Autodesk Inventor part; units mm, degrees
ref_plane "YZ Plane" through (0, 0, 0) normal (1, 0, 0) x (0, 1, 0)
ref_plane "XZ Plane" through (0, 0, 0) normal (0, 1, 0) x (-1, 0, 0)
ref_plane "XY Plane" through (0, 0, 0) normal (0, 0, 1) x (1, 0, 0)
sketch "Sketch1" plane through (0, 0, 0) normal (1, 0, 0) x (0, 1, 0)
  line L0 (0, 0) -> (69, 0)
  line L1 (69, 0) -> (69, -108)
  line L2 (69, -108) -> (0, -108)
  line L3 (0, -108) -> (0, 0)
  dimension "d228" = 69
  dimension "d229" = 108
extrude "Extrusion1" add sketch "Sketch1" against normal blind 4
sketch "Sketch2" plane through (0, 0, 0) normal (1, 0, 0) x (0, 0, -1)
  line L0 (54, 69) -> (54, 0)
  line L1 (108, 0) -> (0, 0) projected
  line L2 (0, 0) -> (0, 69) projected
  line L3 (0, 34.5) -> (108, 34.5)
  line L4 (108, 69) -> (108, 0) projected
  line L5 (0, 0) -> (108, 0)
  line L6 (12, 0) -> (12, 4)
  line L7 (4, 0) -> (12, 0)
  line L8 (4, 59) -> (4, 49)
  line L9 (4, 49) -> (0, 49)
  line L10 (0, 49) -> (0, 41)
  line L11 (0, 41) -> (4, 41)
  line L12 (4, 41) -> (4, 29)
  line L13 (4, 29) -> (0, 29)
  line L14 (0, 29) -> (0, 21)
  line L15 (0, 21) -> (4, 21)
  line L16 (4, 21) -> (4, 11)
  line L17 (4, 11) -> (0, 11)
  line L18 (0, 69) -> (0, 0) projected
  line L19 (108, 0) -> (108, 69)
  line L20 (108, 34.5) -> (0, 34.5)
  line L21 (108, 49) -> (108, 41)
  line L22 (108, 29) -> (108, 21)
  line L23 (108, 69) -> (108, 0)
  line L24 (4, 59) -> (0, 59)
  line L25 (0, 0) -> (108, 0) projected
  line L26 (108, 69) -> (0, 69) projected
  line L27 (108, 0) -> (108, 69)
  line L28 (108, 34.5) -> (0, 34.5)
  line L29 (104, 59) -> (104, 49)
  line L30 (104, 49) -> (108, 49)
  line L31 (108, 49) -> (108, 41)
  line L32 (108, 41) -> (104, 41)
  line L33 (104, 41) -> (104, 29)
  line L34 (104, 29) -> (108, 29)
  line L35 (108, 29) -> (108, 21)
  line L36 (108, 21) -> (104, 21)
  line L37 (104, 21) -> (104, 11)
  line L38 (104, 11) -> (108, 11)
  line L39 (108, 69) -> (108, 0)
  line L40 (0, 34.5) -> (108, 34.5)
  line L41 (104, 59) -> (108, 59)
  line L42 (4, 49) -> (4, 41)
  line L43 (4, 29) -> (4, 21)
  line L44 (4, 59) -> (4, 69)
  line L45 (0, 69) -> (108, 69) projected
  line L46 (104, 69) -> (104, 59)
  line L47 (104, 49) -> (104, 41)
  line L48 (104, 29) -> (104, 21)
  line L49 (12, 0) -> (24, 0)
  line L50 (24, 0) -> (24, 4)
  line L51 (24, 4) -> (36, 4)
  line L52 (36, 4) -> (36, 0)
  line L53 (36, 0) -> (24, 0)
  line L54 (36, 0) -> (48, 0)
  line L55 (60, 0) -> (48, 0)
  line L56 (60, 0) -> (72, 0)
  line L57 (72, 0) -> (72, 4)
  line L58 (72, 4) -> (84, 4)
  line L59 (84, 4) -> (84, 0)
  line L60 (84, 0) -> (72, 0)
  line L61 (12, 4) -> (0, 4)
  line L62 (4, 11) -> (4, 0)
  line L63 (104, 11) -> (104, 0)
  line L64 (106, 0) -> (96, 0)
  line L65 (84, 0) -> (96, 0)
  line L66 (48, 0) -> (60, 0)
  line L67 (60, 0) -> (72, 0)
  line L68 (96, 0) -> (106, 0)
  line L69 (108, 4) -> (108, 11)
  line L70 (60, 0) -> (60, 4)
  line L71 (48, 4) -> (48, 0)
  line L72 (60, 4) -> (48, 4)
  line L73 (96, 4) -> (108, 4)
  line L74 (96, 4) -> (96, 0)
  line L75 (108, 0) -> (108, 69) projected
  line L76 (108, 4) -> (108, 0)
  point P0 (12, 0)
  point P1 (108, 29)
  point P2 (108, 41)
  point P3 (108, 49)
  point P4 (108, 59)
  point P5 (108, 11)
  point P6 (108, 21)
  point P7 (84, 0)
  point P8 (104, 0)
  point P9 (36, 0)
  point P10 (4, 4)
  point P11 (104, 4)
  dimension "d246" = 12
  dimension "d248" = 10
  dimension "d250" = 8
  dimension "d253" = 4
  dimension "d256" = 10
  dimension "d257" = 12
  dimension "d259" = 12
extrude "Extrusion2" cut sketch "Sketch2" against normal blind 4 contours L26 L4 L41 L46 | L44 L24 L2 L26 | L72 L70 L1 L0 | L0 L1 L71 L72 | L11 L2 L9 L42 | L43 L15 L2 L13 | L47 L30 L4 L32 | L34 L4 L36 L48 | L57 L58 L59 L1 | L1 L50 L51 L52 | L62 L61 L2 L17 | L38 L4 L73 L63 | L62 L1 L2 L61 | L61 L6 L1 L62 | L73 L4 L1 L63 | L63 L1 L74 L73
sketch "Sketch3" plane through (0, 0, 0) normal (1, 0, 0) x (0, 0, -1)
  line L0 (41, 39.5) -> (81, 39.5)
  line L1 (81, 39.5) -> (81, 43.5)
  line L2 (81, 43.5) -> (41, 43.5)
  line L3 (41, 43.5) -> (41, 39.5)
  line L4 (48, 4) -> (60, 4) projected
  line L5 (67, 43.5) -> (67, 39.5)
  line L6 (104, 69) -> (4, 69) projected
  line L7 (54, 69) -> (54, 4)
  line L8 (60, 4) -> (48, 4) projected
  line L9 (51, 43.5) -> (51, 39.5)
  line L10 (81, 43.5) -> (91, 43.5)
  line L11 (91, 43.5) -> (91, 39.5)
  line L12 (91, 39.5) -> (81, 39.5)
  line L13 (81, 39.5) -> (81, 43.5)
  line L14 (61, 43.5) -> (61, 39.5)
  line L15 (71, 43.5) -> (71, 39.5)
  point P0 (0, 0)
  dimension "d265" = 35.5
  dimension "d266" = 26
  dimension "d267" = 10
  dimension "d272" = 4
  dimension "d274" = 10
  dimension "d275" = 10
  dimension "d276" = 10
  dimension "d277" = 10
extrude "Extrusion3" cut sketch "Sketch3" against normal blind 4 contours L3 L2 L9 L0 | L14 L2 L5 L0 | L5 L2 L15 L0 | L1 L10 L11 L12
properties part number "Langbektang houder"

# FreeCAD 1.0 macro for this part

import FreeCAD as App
import Part
import Sketcher

V = App.Vector
Q = App.Units.Quantity

doc = App.newDocument("Part")
body = doc.addObject("PartDesign::Body", "Body")

sketch1 = body.newObject("Sketcher::SketchObject", "Sketch")
sketch1.AttachmentSupport = (doc.getObject("YZ_Plane"), [""])
sketch1.MapMode = "FlatFace"
sketch1.addGeometry(Part.LineSegment(V(69, 0, 0), V(0, 0, 0)), False)
sketch1.addGeometry(Part.LineSegment(V(0, 0, 0), V(0, -108, 0)), False)
sketch1.addGeometry(Part.LineSegment(V(0, -108, 0), V(69, -108, 0)), False)
sketch1.addGeometry(Part.LineSegment(V(69, -108, 0), V(69, 0, 0)), False)
sketch1.addConstraint(Sketcher.Constraint("Coincident", 0, 2, 1, 1))
sketch1.addConstraint(Sketcher.Constraint("Coincident", 1, 2, 2, 1))
sketch1.addConstraint(Sketcher.Constraint("Coincident", 2, 2, 3, 1))
sketch1.addConstraint(Sketcher.Constraint("Coincident", 3, 2, 0, 1))
sketch1.addConstraint(Sketcher.Constraint("Horizontal", 0))
sketch1.addConstraint(Sketcher.Constraint("Vertical", 1))
sketch1.addConstraint(Sketcher.Constraint("Horizontal", 2))
sketch1.addConstraint(Sketcher.Constraint("Vertical", 3))
sketch1.addConstraint(Sketcher.Constraint("Coincident", 0, 2, -1, 1))
sketch1.addConstraint(Sketcher.Constraint("DistanceX", 0, 2, 0, 1, Q("69 mm")))
sketch1.addConstraint(Sketcher.Constraint("DistanceY", 1, 2, 1, 1, Q("108 mm")))
pad1 = body.newObject("PartDesign::Pad", "Pad")
pad1.Profile = sketch1
pad1.Length = 4
pad1.Reversed = True

sketch2 = body.newObject("Sketcher::SketchObject", "Sketch001")
sketch2.AttachmentSupport = (doc.getObject("YZ_Plane"), [""])
sketch2.MapMode = "FlatFace"
sketch2.addGeometry(Part.LineSegment(V(69, -108, 0), V(69, -104, 0)), False)
sketch2.addGeometry(Part.LineSegment(V(69, -104, 0), V(59, -104, 0)), False)
sketch2.addGeometry(Part.LineSegment(V(59, -104, 0), V(59, -108, 0)), False)
sketch2.addGeometry(Part.LineSegment(V(59, -108, 0), V(69, -108, 0)), False)
sketch2.addGeometry(Part.LineSegment(V(59, -4, 0), V(69, -4, 0)), False)
sketch2.addGeometry(Part.LineSegment(V(69, -4, 0), V(69, 0, 0)), False)
sketch2.addGeometry(Part.LineSegment(V(69, 0, 0), V(59, 0, 0)), False)
sketch2.addGeometry(Part.LineSegment(V(59, 0, 0), V(59, -4, 0)), False)
sketch2.addGeometry(Part.LineSegment(V(4, -60, 0), V(4, -48, 0)), False)
sketch2.addGeometry(Part.LineSegment(V(4, -48, 0), V(0, -48, 0)), False)
sketch2.addGeometry(Part.LineSegment(V(0, -48, 0), V(0, -60, 0)), False)
sketch2.addGeometry(Part.LineSegment(V(0, -60, 0), V(4, -60, 0)), False)
sketch2.addGeometry(Part.LineSegment(V(41, 0, 0), V(41, -4, 0)), False)
sketch2.addGeometry(Part.LineSegment(V(41, -4, 0), V(49, -4, 0)), False)
sketch2.addGeometry(Part.LineSegment(V(49, -4, 0), V(49, 0, 0)), False)
sketch2.addGeometry(Part.LineSegment(V(49, 0, 0), V(41, 0, 0)), False)
sketch2.addGeometry(Part.LineSegment(V(21, -4, 0), V(29, -4, 0)), False)
sketch2.addGeometry(Part.LineSegment(V(29, -4, 0), V(29, 0, 0)), False)
sketch2.addGeometry(Part.LineSegment(V(29, 0, 0), V(21, 0, 0)), False)
sketch2.addGeometry(Part.LineSegment(V(21, 0, 0), V(21, -4, 0)), False)
sketch2.addGeometry(Part.LineSegment(V(49, -104, 0), V(41, -104, 0)), False)
sketch2.addGeometry(Part.LineSegment(V(41, -104, 0), V(41, -108, 0)), False)
sketch2.addGeometry(Part.LineSegment(V(41, -108, 0), V(49, -108, 0)), False)
sketch2.addGeometry(Part.LineSegment(V(49, -108, 0), V(49, -104, 0)), False)
sketch2.addGeometry(Part.LineSegment(V(29, -108, 0), V(29, -104, 0)), False)
sketch2.addGeometry(Part.LineSegment(V(29, -104, 0), V(21, -104, 0)), False)
sketch2.addGeometry(Part.LineSegment(V(21, -104, 0), V(21, -108, 0)), False)
sketch2.addGeometry(Part.LineSegment(V(21, -108, 0), V(29, -108, 0)), False)
sketch2.addGeometry(Part.LineSegment(V(4, -72, 0), V(0, -72, 0)), False)
sketch2.addGeometry(Part.LineSegment(V(0, -72, 0), V(0, -84, 0)), False)
sketch2.addGeometry(Part.LineSegment(V(0, -84, 0), V(4, -84, 0)), False)
sketch2.addGeometry(Part.LineSegment(V(4, -84, 0), V(4, -72, 0)), False)
sketch2.addGeometry(Part.LineSegment(V(0, -24, 0), V(0, -36, 0)), False)
sketch2.addGeometry(Part.LineSegment(V(0, -36, 0), V(4, -36, 0)), False)
sketch2.addGeometry(Part.LineSegment(V(4, -36, 0), V(4, -24, 0)), False)
sketch2.addGeometry(Part.LineSegment(V(4, -24, 0), V(0, -24, 0)), False)
sketch2.addGeometry(Part.LineSegment(V(4, -4, 0), V(11, -4, 0)), False)
sketch2.addGeometry(Part.LineSegment(V(11, -4, 0), V(11, 0, 0)), False)
sketch2.addGeometry(Part.LineSegment(V(11, 0, 0), V(0, 0, 0)), False)
sketch2.addGeometry(Part.LineSegment(V(0, 0, 0), V(0, -12, 0)), False)
sketch2.addGeometry(Part.LineSegment(V(0, -12, 0), V(4, -12, 0)), False)
sketch2.addGeometry(Part.LineSegment(V(4, -12, 0), V(4, -4, 0)), False)
sketch2.addGeometry(Part.LineSegment(V(11, -108, 0), V(11, -104, 0)), False)
sketch2.addGeometry(Part.LineSegment(V(11, -104, 0), V(4, -104, 0)), False)
sketch2.addGeometry(Part.LineSegment(V(4, -104, 0), V(4, -96, 0)), False)
sketch2.addGeometry(Part.LineSegment(V(4, -96, 0), V(0, -96, 0)), False)
sketch2.addGeometry(Part.LineSegment(V(0, -96, 0), V(0, -108, 0)), False)
sketch2.addGeometry(Part.LineSegment(V(0, -108, 0), V(11, -108, 0)), False)
sketch2.addConstraint(Sketcher.Constraint("Coincident", 0, 2, 1, 1))
sketch2.addConstraint(Sketcher.Constraint("Coincident", 1, 2, 2, 1))
sketch2.addConstraint(Sketcher.Constraint("Coincident", 2, 2, 3, 1))
sketch2.addConstraint(Sketcher.Constraint("Coincident", 3, 2, 0, 1))
sketch2.addConstraint(Sketcher.Constraint("Coincident", 4, 2, 5, 1))
sketch2.addConstraint(Sketcher.Constraint("Coincident", 5, 2, 6, 1))
sketch2.addConstraint(Sketcher.Constraint("Coincident", 6, 2, 7, 1))
sketch2.addConstraint(Sketcher.Constraint("Coincident", 7, 2, 4, 1))
sketch2.addConstraint(Sketcher.Constraint("Coincident", 8, 2, 9, 1))
sketch2.addConstraint(Sketcher.Constraint("Coincident", 9, 2, 10, 1))
sketch2.addConstraint(Sketcher.Constraint("Coincident", 10, 2, 11, 1))
sketch2.addConstraint(Sketcher.Constraint("Coincident", 11, 2, 8, 1))
sketch2.addConstraint(Sketcher.Constraint("Coincident", 12, 2, 13, 1))
sketch2.addConstraint(Sketcher.Constraint("Coincident", 13, 2, 14, 1))
sketch2.addConstraint(Sketcher.Constraint("Coincident", 14, 2, 15, 1))
sketch2.addConstraint(Sketcher.Constraint("Coincident", 15, 2, 12, 1))
sketch2.addConstraint(Sketcher.Constraint("Coincident", 16, 2, 17, 1))
sketch2.addConstraint(Sketcher.Constraint("Coincident", 17, 2, 18, 1))
sketch2.addConstraint(Sketcher.Constraint("Coincident", 18, 2, 19, 1))
sketch2.addConstraint(Sketcher.Constraint("Coincident", 19, 2, 16, 1))
sketch2.addConstraint(Sketcher.Constraint("Coincident", 20, 2, 21, 1))
sketch2.addConstraint(Sketcher.Constraint("Coincident", 21, 2, 22, 1))
sketch2.addConstraint(Sketcher.Constraint("Coincident", 22, 2, 23, 1))
sketch2.addConstraint(Sketcher.Constraint("Coincident", 23, 2, 20, 1))
sketch2.addConstraint(Sketcher.Constraint("Coincident", 24, 2, 25, 1))
sketch2.addConstraint(Sketcher.Constraint("Coincident", 25, 2, 26, 1))
sketch2.addConstraint(Sketcher.Constraint("Coincident", 26, 2, 27, 1))
sketch2.addConstraint(Sketcher.Constraint("Coincident", 27, 2, 24, 1))
sketch2.addConstraint(Sketcher.Constraint("Coincident", 28, 2, 29, 1))
sketch2.addConstraint(Sketcher.Constraint("Coincident", 29, 2, 30, 1))
sketch2.addConstraint(Sketcher.Constraint("Coincident", 30, 2, 31, 1))
sketch2.addConstraint(Sketcher.Constraint("Coincident", 31, 2, 28, 1))
sketch2.addConstraint(Sketcher.Constraint("Coincident", 32, 2, 33, 1))
sketch2.addConstraint(Sketcher.Constraint("Coincident", 33, 2, 34, 1))
sketch2.addConstraint(Sketcher.Constraint("Coincident", 34, 2, 35, 1))
sketch2.addConstraint(Sketcher.Constraint("Coincident", 35, 2, 32, 1))
sketch2.addConstraint(Sketcher.Constraint("Coincident", 36, 2, 37, 1))
sketch2.addConstraint(Sketcher.Constraint("Coincident", 37, 2, 38, 1))
sketch2.addConstraint(Sketcher.Constraint("Coincident", 38, 2, 39, 1))
sketch2.addConstraint(Sketcher.Constraint("Coincident", 39, 2, 40, 1))
sketch2.addConstraint(Sketcher.Constraint("Coincident", 40, 2, 41, 1))
sketch2.addConstraint(Sketcher.Constraint("Coincident", 41, 2, 36, 1))
sketch2.addConstraint(Sketcher.Constraint("Coincident", 42, 2, 43, 1))
sketch2.addConstraint(Sketcher.Constraint("Coincident", 43, 2, 44, 1))
sketch2.addConstraint(Sketcher.Constraint("Coincident", 44, 2, 45, 1))
sketch2.addConstraint(Sketcher.Constraint("Coincident", 45, 2, 46, 1))
sketch2.addConstraint(Sketcher.Constraint("Coincident", 46, 2, 47, 1))
sketch2.addConstraint(Sketcher.Constraint("Coincident", 47, 2, 42, 1))
sketch2.addConstraint(Sketcher.Constraint("Vertical", 0))
sketch2.addConstraint(Sketcher.Constraint("Horizontal", 1))
sketch2.addConstraint(Sketcher.Constraint("Vertical", 2))
sketch2.addConstraint(Sketcher.Constraint("Horizontal", 3))
sketch2.addConstraint(Sketcher.Constraint("Horizontal", 4))
sketch2.addConstraint(Sketcher.Constraint("Vertical", 5))
sketch2.addConstraint(Sketcher.Constraint("Horizontal", 6))
sketch2.addConstraint(Sketcher.Constraint("Vertical", 7))
sketch2.addConstraint(Sketcher.Constraint("Vertical", 8))
sketch2.addConstraint(Sketcher.Constraint("Horizontal", 9))
sketch2.addConstraint(Sketcher.Constraint("Vertical", 10))
sketch2.addConstraint(Sketcher.Constraint("Horizontal", 11))
sketch2.addConstraint(Sketcher.Constraint("Vertical", 12))
sketch2.addConstraint(Sketcher.Constraint("Horizontal", 13))
sketch2.addConstraint(Sketcher.Constraint("Vertical", 14))
sketch2.addConstraint(Sketcher.Constraint("Horizontal", 15))
sketch2.addConstraint(Sketcher.Constraint("Horizontal", 16))
sketch2.addConstraint(Sketcher.Constraint("Vertical", 17))
sketch2.addConstraint(Sketcher.Constraint("Horizontal", 18))
sketch2.addConstraint(Sketcher.Constraint("Vertical", 19))
sketch2.addConstraint(Sketcher.Constraint("Horizontal", 20))
sketch2.addConstraint(Sketcher.Constraint("Vertical", 21))
sketch2.addConstraint(Sketcher.Constraint("Horizontal", 22))
sketch2.addConstraint(Sketcher.Constraint("Vertical", 23))
sketch2.addConstraint(Sketcher.Constraint("Vertical", 24))
sketch2.addConstraint(Sketcher.Constraint("Horizontal", 25))
sketch2.addConstraint(Sketcher.Constraint("Vertical", 26))
sketch2.addConstraint(Sketcher.Constraint("Horizontal", 27))
sketch2.addConstraint(Sketcher.Constraint("Horizontal", 28))
sketch2.addConstraint(Sketcher.Constraint("Vertical", 29))
sketch2.addConstraint(Sketcher.Constraint("Horizontal", 30))
sketch2.addConstraint(Sketcher.Constraint("Vertical", 31))
sketch2.addConstraint(Sketcher.Constraint("Vertical", 32))
sketch2.addConstraint(Sketcher.Constraint("Horizontal", 33))
sketch2.addConstraint(Sketcher.Constraint("Vertical", 34))
sketch2.addConstraint(Sketcher.Constraint("Horizontal", 35))
sketch2.addConstraint(Sketcher.Constraint("Horizontal", 36))
sketch2.addConstraint(Sketcher.Constraint("Vertical", 37))
sketch2.addConstraint(Sketcher.Constraint("Horizontal", 38))
sketch2.addConstraint(Sketcher.Constraint("Vertical", 39))
sketch2.addConstraint(Sketcher.Constraint("Horizontal", 40))
sketch2.addConstraint(Sketcher.Constraint("Vertical", 41))
sketch2.addConstraint(Sketcher.Constraint("Vertical", 42))
sketch2.addConstraint(Sketcher.Constraint("Horizontal", 43))
sketch2.addConstraint(Sketcher.Constraint("Vertical", 44))
sketch2.addConstraint(Sketcher.Constraint("Horizontal", 45))
sketch2.addConstraint(Sketcher.Constraint("Vertical", 46))
sketch2.addConstraint(Sketcher.Constraint("Horizontal", 47))
sketch2.addConstraint(Sketcher.Constraint("Coincident", 38, 2, -1, 1))
sketch2.addConstraint(Sketcher.Constraint("PointOnObject", 5, 2, -1))
sketch2.addConstraint(Sketcher.Constraint("PointOnObject", 9, 2, -2))
sketch2.addConstraint(Sketcher.Constraint("PointOnObject", 14, 2, -1))
sketch2.addConstraint(Sketcher.Constraint("PointOnObject", 17, 2, -1))
sketch2.addConstraint(Sketcher.Constraint("PointOnObject", 28, 2, -2))
sketch2.addConstraint(Sketcher.Constraint("PointOnObject", 32, 2, -2))
sketch2.addConstraint(Sketcher.Constraint("PointOnObject", 45, 2, -2))
sketch2.addConstraint(Sketcher.Constraint("Horizontal", 7, 2, 12, 2))
sketch2.addConstraint(Sketcher.Constraint("Horizontal", 13, 2, 16, 2))
sketch2.addConstraint(Sketcher.Constraint("Horizontal", 1, 2, 20, 2))
sketch2.addConstraint(Sketcher.Constraint("Horizontal", 3, 2, 21, 2))
sketch2.addConstraint(Sketcher.Constraint("Horizontal", 23, 2, 24, 2))
sketch2.addConstraint(Sketcher.Constraint("Horizontal", 22, 2, 26, 2))
sketch2.addConstraint(Sketcher.Constraint("Horizontal", 19, 2, 36, 2))
sketch2.addConstraint(Sketcher.Constraint("Horizontal", 25, 2, 42, 2))
sketch2.addConstraint(Sketcher.Constraint("Horizontal", 27, 2, 46, 2))
sketch2.addConstraint(Sketcher.Constraint("Vertical", 3, 2, 4, 2))
sketch2.addConstraint(Sketcher.Constraint("Vertical", 2, 2, 6, 2))
sketch2.addConstraint(Sketcher.Constraint("Vertical", 15, 2, 20, 2))
sketch2.addConstraint(Sketcher.Constraint("Vertical", 14, 2, 22, 2))
sketch2.addConstraint(Sketcher.Constraint("Vertical", 17, 2, 24, 2))
sketch2.addConstraint(Sketcher.Constraint("Vertical", 19, 2, 25, 2))
sketch2.addConstraint(Sketcher.Constraint("Vertical", 11, 2, 30, 2))
sketch2.addConstraint(Sketcher.Constraint("Vertical", 31, 2, 33, 2))
sketch2.addConstraint(Sketcher.Constraint("Vertical", 34, 2, 40, 2))
sketch2.addConstraint(Sketcher.Constraint("Vertical", 37, 2, 42, 2))
sketch2.addConstraint(Sketcher.Constraint("Vertical", 41, 2, 43, 2))
sketch2.addConstraint(Sketcher.Constraint("Equal", 15, 16))
sketch2.addConstraint(Sketcher.Constraint("Equal", 45, 0))
sketch2.addConstraint(Sketcher.Constraint("Equal", 2, 5))
sketch2.addConstraint(Sketcher.Constraint("Equal", 10, 29))
sketch2.addConstraint(Sketcher.Constraint("Equal", 31, 32))
sketch2.addConstraint(Sketcher.Constraint("Equal", 34, 39))
sketch2.addConstraint(Sketcher.Constraint("Equal", 27, 41))
sketch2.addConstraint(Sketcher.Constraint("Equal", 41, 44))
sketch2.addConstraint(Sketcher.Constraint("DistanceX", 1, 2, 1, 1, Q("10 mm")))
sketch2.addConstraint(Sketcher.Constraint("DistanceX", 9, 2, 9, 1, Q("4 mm")))
sketch2.addConstraint(Sketcher.Constraint("DistanceX", 13, 1, 13, 2, Q("8 mm")))
sketch2.addConstraint(Sketcher.Constraint("DistanceX", 13, 2, 7, 2, Q("10 mm")))
sketch2.addConstraint(Sketcher.Constraint("DistanceX", 16, 2, 12, 2, Q("12 mm")))
sketch2.addConstraint(Sketcher.Constraint("DistanceY", 28, 2, 10, 2, Q("12 mm")))
sketch2.addConstraint(Sketcher.Constraint("DistanceY", 9, 2, 32, 2, Q("12 mm")))
sketch2.addConstraint(Sketcher.Constraint("DistanceX", 36, 2, 19, 2, Q("10 mm")))
sketch2.addConstraint(Sketcher.Constraint("DistanceY", 35, 2, 39, 2, Q("12 mm")))
sketch2.addConstraint(Sketcher.Constraint("DistanceY", 44, 2, 30, 2, Q("12 mm")))
sketch2.addConstraint(Sketcher.Constraint("DistanceX", 36, 1, 36, 2, Q("7 mm")))
pocket1 = body.newObject("PartDesign::Pocket", "Pocket")
pocket1.Profile = sketch2
pocket1.Length = 4

sketch3 = body.newObject("Sketcher::SketchObject", "Sketch002")
sketch3.AttachmentSupport = (doc.getObject("YZ_Plane"), [""])
sketch3.MapMode = "FlatFace"
sketch3.addGeometry(Part.LineSegment(V(43.5, -41, 0), V(39.5, -41, 0)), False)
sketch3.addGeometry(Part.LineSegment(V(39.5, -41, 0), V(39.5, -51, 0)), False)
sketch3.addGeometry(Part.LineSegment(V(39.5, -51, 0), V(43.5, -51, 0)), False)
sketch3.addGeometry(Part.LineSegment(V(43.5, -51, 0), V(43.5, -41, 0)), False)
sketch3.addGeometry(Part.LineSegment(V(43.5, -61, 0), V(39.5, -61, 0)), False)
sketch3.addGeometry(Part.LineSegment(V(39.5, -61, 0), V(39.5, -71, 0)), False)
sketch3.addGeometry(Part.LineSegment(V(39.5, -71, 0), V(43.5, -71, 0)), False)
sketch3.addGeometry(Part.LineSegment(V(43.5, -71, 0), V(43.5, -61, 0)), False)
sketch3.addGeometry(Part.LineSegment(V(43.5, -81, 0), V(39.5, -81, 0)), False)
sketch3.addGeometry(Part.LineSegment(V(39.5, -81, 0), V(39.5, -91, 0)), False)
sketch3.addGeometry(Part.LineSegment(V(39.5, -91, 0), V(43.5, -91, 0)), False)
sketch3.addGeometry(Part.LineSegment(V(43.5, -91, 0), V(43.5, -81, 0)), False)
sketch3.addConstraint(Sketcher.Constraint("Coincident", 0, 2, 1, 1))
sketch3.addConstraint(Sketcher.Constraint("Coincident", 1, 2, 2, 1))
sketch3.addConstraint(Sketcher.Constraint("Coincident", 2, 2, 3, 1))
sketch3.addConstraint(Sketcher.Constraint("Coincident", 3, 2, 0, 1))
sketch3.addConstraint(Sketcher.Constraint("Coincident", 4, 2, 5, 1))
sketch3.addConstraint(Sketcher.Constraint("Coincident", 5, 2, 6, 1))
sketch3.addConstraint(Sketcher.Constraint("Coincident", 6, 2, 7, 1))
sketch3.addConstraint(Sketcher.Constraint("Coincident", 7, 2, 4, 1))
sketch3.addConstraint(Sketcher.Constraint("Coincident", 8, 2, 9, 1))
sketch3.addConstraint(Sketcher.Constraint("Coincident", 9, 2, 10, 1))
sketch3.addConstraint(Sketcher.Constraint("Coincident", 10, 2, 11, 1))
sketch3.addConstraint(Sketcher.Constraint("Coincident", 11, 2, 8, 1))
sketch3.addConstraint(Sketcher.Constraint("Horizontal", 0))
sketch3.addConstraint(Sketcher.Constraint("Vertical", 1))
sketch3.addConstraint(Sketcher.Constraint("Horizontal", 2))
sketch3.addConstraint(Sketcher.Constraint("Vertical", 3))
sketch3.addConstraint(Sketcher.Constraint("Horizontal", 4))
sketch3.addConstraint(Sketcher.Constraint("Vertical", 5))
sketch3.addConstraint(Sketcher.Constraint("Horizontal", 6))
sketch3.addConstraint(Sketcher.Constraint("Vertical", 7))
sketch3.addConstraint(Sketcher.Constraint("Horizontal", 8))
sketch3.addConstraint(Sketcher.Constraint("Vertical", 9))
sketch3.addConstraint(Sketcher.Constraint("Horizontal", 10))
sketch3.addConstraint(Sketcher.Constraint("Vertical", 11))
sketch3.addConstraint(Sketcher.Constraint("Vertical", 1, 2, 4, 2))
sketch3.addConstraint(Sketcher.Constraint("Vertical", 3, 2, 6, 2))
sketch3.addConstraint(Sketcher.Constraint("Vertical", 5, 2, 8, 2))
sketch3.addConstraint(Sketcher.Constraint("Vertical", 7, 2, 10, 2))
sketch3.addConstraint(Sketcher.Constraint("Equal", 3, 5))
sketch3.addConstraint(Sketcher.Constraint("Equal", 7, 9))
sketch3.addConstraint(Sketcher.Constraint("DistanceX", 0, 2, 0, 1, Q("4 mm")))
sketch3.addConstraint(Sketcher.Constraint("DistanceY", 1, 2, 1, 1, Q("10 mm")))
sketch3.addConstraint(Sketcher.Constraint("DistanceY", 4, 2, 1, 2, Q("10 mm")))
sketch3.addConstraint(Sketcher.Constraint("DistanceY", 8, 2, 5, 2, Q("10 mm")))
sketch3.addConstraint(Sketcher.Constraint("DistanceY", 0, 2, -1, 1, Q("41 mm")))
sketch3.addConstraint(Sketcher.Constraint("DistanceX", -1, 1, 0, 2, Q("39.5 mm")))
pocket2 = body.newObject("PartDesign::Pocket", "Pocket001")
pocket2.Profile = sketch3
pocket2.Length = 4

doc.recompute()
